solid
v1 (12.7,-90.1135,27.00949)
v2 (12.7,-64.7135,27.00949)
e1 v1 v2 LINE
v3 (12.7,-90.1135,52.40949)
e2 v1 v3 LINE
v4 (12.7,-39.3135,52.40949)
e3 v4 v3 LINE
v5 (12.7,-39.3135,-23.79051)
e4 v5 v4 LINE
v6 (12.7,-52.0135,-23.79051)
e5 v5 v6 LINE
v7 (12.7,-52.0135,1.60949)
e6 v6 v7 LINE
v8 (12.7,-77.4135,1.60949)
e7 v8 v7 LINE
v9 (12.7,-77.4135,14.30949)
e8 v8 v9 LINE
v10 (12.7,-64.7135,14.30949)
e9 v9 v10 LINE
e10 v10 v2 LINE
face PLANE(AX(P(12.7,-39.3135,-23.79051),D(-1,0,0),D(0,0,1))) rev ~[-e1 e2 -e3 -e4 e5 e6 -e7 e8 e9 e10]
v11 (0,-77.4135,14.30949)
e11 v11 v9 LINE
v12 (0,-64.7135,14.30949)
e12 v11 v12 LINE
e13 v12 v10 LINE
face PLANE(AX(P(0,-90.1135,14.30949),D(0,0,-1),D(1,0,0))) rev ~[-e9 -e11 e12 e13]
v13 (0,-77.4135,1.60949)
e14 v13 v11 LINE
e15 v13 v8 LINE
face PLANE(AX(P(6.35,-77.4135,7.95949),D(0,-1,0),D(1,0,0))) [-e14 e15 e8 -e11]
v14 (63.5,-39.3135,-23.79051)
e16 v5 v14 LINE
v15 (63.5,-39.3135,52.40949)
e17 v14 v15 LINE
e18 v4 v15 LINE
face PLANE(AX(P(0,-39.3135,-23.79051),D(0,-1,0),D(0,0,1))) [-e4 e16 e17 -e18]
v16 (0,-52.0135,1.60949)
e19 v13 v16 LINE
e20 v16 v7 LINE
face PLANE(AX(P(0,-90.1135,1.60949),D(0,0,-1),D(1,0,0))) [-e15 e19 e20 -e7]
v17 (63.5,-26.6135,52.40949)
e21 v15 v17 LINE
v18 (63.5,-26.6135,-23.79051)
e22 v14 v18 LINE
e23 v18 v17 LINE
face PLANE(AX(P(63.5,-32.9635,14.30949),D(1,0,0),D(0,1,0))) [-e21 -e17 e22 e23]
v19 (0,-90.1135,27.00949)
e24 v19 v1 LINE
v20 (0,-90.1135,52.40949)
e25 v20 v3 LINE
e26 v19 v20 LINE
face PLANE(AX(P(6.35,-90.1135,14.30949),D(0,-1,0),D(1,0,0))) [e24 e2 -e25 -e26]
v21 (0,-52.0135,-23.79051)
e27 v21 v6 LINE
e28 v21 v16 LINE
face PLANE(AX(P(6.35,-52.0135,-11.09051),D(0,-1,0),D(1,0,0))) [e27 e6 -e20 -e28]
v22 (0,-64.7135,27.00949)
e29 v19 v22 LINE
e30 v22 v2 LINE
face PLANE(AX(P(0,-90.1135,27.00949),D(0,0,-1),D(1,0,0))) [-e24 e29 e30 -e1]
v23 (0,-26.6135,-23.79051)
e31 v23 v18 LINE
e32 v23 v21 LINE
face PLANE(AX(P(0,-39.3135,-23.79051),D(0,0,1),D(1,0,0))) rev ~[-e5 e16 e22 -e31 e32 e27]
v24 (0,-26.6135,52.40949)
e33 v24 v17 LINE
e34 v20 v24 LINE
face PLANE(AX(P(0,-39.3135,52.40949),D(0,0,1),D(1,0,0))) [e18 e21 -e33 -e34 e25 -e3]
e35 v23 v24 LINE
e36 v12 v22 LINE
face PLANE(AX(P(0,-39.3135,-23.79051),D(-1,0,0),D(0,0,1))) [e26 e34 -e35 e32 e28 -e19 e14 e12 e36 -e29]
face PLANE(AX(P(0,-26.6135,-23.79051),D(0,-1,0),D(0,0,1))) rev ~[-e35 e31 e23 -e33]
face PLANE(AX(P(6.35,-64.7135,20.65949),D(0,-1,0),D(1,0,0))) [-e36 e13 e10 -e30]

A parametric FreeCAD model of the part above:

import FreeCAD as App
import Part
import Sketcher

V = App.Vector
Q = App.Units.Quantity

doc = App.newDocument("Part")
body = doc.addObject("PartDesign::Body", "Body")

sketch1 = body.newObject("Sketcher::SketchObject", "Sketch")
sketch1.AttachmentSupport = (doc.getObject("YZ_Plane"), [""])
sketch1.MapMode = "FlatFace"
sketch1.addGeometry([
    Part.LineSegment(V(-39, 52, 0), V(-39, -24, 0)),
    Part.LineSegment(V(-39, -24, 0), V(-27, -24, 0)),
    Part.LineSegment(V(-27, -24, 0), V(-27, 52, 0)),
    Part.LineSegment(V(-27, 52, 0), V(-39, 52, 0)),
], False)
sketch1.addConstraint([
    Sketcher.Constraint("Coincident", 0, 2, 1, 1),
    Sketcher.Constraint("Coincident", 1, 2, 2, 1),
    Sketcher.Constraint("Coincident", 2, 2, 3, 1),
    Sketcher.Constraint("Coincident", 3, 2, 0, 1),
    Sketcher.Constraint("Vertical", 0),
    Sketcher.Constraint("Horizontal", 1),
    Sketcher.Constraint("Vertical", 2),
    Sketcher.Constraint("Horizontal", 3),
    Sketcher.Constraint("DistanceY", 0, 2, 0, 1, Q("3 in")),
    Sketcher.Constraint("DistanceX", 1, 1, 1, 2, Q("0.5 in")),
    Sketcher.Constraint("DistanceX", 0, 2, -1, 1, Q("39.3135 mm")),
    Sketcher.Constraint("DistanceY", 0, 2, -1, 1, Q("23.79051 mm")),
])
pad1 = body.newObject("PartDesign::Pad", "Pad")
pad1.Profile = sketch1
pad1.Length = Q("2.5 in")

sketch2 = body.newObject("Sketcher::SketchObject", "Sketch001")
sketch2.AttachmentSupport = (doc.getObject("XZ_Plane"), [""])
sketch2.MapMode = "FlatFace"
sketch2.AttachmentOffset = App.Placement(V(0, 0, 39.3135), App.Rotation())
sketch2.addGeometry([
    Part.LineSegment(V(0, 52, 0), V(0, -24, 0)),
    Part.LineSegment(V(0, -24, 0), V(13, -24, 0)),
    Part.LineSegment(V(13, -24, 0), V(13, 52, 0)),
    Part.LineSegment(V(13, 52, 0), V(0, 52, 0)),
], False)
sketch2.addConstraint([
    Sketcher.Constraint("Coincident", 0, 2, 1, 1),
    Sketcher.Constraint("Coincident", 1, 2, 2, 1),
    Sketcher.Constraint("Coincident", 2, 2, 3, 1),
    Sketcher.Constraint("Coincident", 3, 2, 0, 1),
    Sketcher.Constraint("Vertical", 0),
    Sketcher.Constraint("Horizontal", 1),
    Sketcher.Constraint("Vertical", 2),
    Sketcher.Constraint("Horizontal", 3),
    Sketcher.Constraint("PointOnObject", 0, 2, -2),
    Sketcher.Constraint("DistanceY", 0, 2, 0, 1, Q("3 in")),
    Sketcher.Constraint("DistanceX", 1, 1, 1, 2, Q("0.5 in")),
    Sketcher.Constraint("DistanceY", 0, 2, -1, 1, Q("23.79051 mm")),
])
pad2 = body.newObject("PartDesign::Pad", "Pad001")
pad2.Profile = sketch2
pad2.Length = Q("2 in")

sketch3 = body.newObject("Sketcher::SketchObject", "Sketch002")
sketch3.AttachmentSupport = (doc.getObject("XZ_Plane"), [""])
sketch3.MapMode = "FlatFace"
sketch3.AttachmentOffset = App.Placement(V(0, 0, 90.1135), App.Rotation())
sketch3.addGeometry([
    Part.LineSegment(V(0, 2, 0), V(0, -24, 0)),
    Part.LineSegment(V(0, -24, 0), V(13, -24, 0)),
    Part.LineSegment(V(13, -24, 0), V(13, 2, 0)),
    Part.LineSegment(V(13, 2, 0), V(0, 2, 0)),
], False)
sketch3.addConstraint([
    Sketcher.Constraint("Coincident", 0, 2, 1, 1),
    Sketcher.Constraint("Coincident", 1, 2, 2, 1),
    Sketcher.Constraint("Coincident", 2, 2, 3, 1),
    Sketcher.Constraint("Coincident", 3, 2, 0, 1),
    Sketcher.Constraint("Vertical", 0),
    Sketcher.Constraint("Horizontal", 1),
    Sketcher.Constraint("Vertical", 2),
    Sketcher.Constraint("Horizontal", 3),
    Sketcher.Constraint("PointOnObject", 0, 2, -2),
    Sketcher.Constraint("DistanceY", 0, 2, 0, 1, Q("1 in")),
    Sketcher.Constraint("DistanceX", 1, 1, 1, 2, Q("0.5 in")),
    Sketcher.Constraint("DistanceY", 0, 2, -1, 1, Q("23.79051 mm")),
])
pocket1 = body.newObject("PartDesign::Pocket", "Pocket")
pocket1.Profile = sketch3
pocket1.Length = Q("1.5 in")

sketch4 = body.newObject("Sketcher::SketchObject", "Sketch003")
sketch4.AttachmentSupport = (doc.getObject("XZ_Plane"), [""])
sketch4.MapMode = "FlatFace"
sketch4.AttachmentOffset = App.Placement(V(0, 0, 90.1135), App.Rotation())
sketch4.addGeometry([
    Part.LineSegment(V(0, 14, 0), V(0, 2, 0)),
    Part.LineSegment(V(0, 2, 0), V(13, 2, 0)),
    Part.LineSegment(V(13, 2, 0), V(13, 14, 0)),
    Part.LineSegment(V(13, 14, 0), V(0, 14, 0)),
], False)
sketch4.addConstraint([
    Sketcher.Constraint("Coincident", 0, 2, 1, 1),
    Sketcher.Constraint("Coincident", 1, 2, 2, 1),
    Sketcher.Constraint("Coincident", 2, 2, 3, 1),
    Sketcher.Constraint("Coincident", 3, 2, 0, 1),
    Sketcher.Constraint("Vertical", 0),
    Sketcher.Constraint("Horizontal", 1),
    Sketcher.Constraint("Vertical", 2),
    Sketcher.Constraint("Horizontal", 3),
    Sketcher.Constraint("PointOnObject", 0, 2, -2),
    Sketcher.Constraint("Equal", 3, 0),
    Sketcher.Constraint("DistanceX", 1, 1, 1, 2, Q("0.5 in")),
    Sketcher.Constraint("DistanceY", -1, 1, 0, 2, Q("1.60949 mm")),
])
pocket2 = body.newObject("PartDesign::Pocket", "Pocket001")
pocket2.Profile = sketch4
pocket2.Length = Q("0.5 in")

sketch5 = body.newObject("Sketcher::SketchObject", "Sketch004")
sketch5.AttachmentSupport = (doc.getObject("XZ_Plane"), [""])
sketch5.MapMode = "FlatFace"
sketch5.AttachmentOffset = App.Placement(V(0, 0, 90.1135), App.Rotation())
sketch5.addGeometry([
    Part.LineSegment(V(0, 27, 0), V(0, 14, 0)),
    Part.LineSegment(V(0, 14, 0), V(13, 14, 0)),
    Part.LineSegment(V(13, 14, 0), V(13, 27, 0)),
    Part.LineSegment(V(13, 27, 0), V(0, 27, 0)),
], False)
sketch5.addConstraint([
    Sketcher.Constraint("Coincident", 0, 2, 1, 1),
    Sketcher.Constraint("Coincident", 1, 2, 2, 1),
    Sketcher.Constraint("Coincident", 2, 2, 3, 1),
    Sketcher.Constraint("Coincident", 3, 2, 0, 1),
    Sketcher.Constraint("Vertical", 0),
    Sketcher.Constraint("Horizontal", 1),
    Sketcher.Constraint("Vertical", 2),
    Sketcher.Constraint("Horizontal", 3),
    Sketcher.Constraint("PointOnObject", 0, 2, -2),
    Sketcher.Constraint("Equal", 3, 0),
    Sketcher.Constraint("DistanceX", 1, 1, 1, 2, Q("0.5 in")),
    Sketcher.Constraint("DistanceY", -1, 1, 0, 2, Q("14.30949 mm")),
])
pocket3 = body.newObject("PartDesign::Pocket", "Pocket002")
pocket3.Profile = sketch5
pocket3.Length = Q("1 in")

doc.recompute()
